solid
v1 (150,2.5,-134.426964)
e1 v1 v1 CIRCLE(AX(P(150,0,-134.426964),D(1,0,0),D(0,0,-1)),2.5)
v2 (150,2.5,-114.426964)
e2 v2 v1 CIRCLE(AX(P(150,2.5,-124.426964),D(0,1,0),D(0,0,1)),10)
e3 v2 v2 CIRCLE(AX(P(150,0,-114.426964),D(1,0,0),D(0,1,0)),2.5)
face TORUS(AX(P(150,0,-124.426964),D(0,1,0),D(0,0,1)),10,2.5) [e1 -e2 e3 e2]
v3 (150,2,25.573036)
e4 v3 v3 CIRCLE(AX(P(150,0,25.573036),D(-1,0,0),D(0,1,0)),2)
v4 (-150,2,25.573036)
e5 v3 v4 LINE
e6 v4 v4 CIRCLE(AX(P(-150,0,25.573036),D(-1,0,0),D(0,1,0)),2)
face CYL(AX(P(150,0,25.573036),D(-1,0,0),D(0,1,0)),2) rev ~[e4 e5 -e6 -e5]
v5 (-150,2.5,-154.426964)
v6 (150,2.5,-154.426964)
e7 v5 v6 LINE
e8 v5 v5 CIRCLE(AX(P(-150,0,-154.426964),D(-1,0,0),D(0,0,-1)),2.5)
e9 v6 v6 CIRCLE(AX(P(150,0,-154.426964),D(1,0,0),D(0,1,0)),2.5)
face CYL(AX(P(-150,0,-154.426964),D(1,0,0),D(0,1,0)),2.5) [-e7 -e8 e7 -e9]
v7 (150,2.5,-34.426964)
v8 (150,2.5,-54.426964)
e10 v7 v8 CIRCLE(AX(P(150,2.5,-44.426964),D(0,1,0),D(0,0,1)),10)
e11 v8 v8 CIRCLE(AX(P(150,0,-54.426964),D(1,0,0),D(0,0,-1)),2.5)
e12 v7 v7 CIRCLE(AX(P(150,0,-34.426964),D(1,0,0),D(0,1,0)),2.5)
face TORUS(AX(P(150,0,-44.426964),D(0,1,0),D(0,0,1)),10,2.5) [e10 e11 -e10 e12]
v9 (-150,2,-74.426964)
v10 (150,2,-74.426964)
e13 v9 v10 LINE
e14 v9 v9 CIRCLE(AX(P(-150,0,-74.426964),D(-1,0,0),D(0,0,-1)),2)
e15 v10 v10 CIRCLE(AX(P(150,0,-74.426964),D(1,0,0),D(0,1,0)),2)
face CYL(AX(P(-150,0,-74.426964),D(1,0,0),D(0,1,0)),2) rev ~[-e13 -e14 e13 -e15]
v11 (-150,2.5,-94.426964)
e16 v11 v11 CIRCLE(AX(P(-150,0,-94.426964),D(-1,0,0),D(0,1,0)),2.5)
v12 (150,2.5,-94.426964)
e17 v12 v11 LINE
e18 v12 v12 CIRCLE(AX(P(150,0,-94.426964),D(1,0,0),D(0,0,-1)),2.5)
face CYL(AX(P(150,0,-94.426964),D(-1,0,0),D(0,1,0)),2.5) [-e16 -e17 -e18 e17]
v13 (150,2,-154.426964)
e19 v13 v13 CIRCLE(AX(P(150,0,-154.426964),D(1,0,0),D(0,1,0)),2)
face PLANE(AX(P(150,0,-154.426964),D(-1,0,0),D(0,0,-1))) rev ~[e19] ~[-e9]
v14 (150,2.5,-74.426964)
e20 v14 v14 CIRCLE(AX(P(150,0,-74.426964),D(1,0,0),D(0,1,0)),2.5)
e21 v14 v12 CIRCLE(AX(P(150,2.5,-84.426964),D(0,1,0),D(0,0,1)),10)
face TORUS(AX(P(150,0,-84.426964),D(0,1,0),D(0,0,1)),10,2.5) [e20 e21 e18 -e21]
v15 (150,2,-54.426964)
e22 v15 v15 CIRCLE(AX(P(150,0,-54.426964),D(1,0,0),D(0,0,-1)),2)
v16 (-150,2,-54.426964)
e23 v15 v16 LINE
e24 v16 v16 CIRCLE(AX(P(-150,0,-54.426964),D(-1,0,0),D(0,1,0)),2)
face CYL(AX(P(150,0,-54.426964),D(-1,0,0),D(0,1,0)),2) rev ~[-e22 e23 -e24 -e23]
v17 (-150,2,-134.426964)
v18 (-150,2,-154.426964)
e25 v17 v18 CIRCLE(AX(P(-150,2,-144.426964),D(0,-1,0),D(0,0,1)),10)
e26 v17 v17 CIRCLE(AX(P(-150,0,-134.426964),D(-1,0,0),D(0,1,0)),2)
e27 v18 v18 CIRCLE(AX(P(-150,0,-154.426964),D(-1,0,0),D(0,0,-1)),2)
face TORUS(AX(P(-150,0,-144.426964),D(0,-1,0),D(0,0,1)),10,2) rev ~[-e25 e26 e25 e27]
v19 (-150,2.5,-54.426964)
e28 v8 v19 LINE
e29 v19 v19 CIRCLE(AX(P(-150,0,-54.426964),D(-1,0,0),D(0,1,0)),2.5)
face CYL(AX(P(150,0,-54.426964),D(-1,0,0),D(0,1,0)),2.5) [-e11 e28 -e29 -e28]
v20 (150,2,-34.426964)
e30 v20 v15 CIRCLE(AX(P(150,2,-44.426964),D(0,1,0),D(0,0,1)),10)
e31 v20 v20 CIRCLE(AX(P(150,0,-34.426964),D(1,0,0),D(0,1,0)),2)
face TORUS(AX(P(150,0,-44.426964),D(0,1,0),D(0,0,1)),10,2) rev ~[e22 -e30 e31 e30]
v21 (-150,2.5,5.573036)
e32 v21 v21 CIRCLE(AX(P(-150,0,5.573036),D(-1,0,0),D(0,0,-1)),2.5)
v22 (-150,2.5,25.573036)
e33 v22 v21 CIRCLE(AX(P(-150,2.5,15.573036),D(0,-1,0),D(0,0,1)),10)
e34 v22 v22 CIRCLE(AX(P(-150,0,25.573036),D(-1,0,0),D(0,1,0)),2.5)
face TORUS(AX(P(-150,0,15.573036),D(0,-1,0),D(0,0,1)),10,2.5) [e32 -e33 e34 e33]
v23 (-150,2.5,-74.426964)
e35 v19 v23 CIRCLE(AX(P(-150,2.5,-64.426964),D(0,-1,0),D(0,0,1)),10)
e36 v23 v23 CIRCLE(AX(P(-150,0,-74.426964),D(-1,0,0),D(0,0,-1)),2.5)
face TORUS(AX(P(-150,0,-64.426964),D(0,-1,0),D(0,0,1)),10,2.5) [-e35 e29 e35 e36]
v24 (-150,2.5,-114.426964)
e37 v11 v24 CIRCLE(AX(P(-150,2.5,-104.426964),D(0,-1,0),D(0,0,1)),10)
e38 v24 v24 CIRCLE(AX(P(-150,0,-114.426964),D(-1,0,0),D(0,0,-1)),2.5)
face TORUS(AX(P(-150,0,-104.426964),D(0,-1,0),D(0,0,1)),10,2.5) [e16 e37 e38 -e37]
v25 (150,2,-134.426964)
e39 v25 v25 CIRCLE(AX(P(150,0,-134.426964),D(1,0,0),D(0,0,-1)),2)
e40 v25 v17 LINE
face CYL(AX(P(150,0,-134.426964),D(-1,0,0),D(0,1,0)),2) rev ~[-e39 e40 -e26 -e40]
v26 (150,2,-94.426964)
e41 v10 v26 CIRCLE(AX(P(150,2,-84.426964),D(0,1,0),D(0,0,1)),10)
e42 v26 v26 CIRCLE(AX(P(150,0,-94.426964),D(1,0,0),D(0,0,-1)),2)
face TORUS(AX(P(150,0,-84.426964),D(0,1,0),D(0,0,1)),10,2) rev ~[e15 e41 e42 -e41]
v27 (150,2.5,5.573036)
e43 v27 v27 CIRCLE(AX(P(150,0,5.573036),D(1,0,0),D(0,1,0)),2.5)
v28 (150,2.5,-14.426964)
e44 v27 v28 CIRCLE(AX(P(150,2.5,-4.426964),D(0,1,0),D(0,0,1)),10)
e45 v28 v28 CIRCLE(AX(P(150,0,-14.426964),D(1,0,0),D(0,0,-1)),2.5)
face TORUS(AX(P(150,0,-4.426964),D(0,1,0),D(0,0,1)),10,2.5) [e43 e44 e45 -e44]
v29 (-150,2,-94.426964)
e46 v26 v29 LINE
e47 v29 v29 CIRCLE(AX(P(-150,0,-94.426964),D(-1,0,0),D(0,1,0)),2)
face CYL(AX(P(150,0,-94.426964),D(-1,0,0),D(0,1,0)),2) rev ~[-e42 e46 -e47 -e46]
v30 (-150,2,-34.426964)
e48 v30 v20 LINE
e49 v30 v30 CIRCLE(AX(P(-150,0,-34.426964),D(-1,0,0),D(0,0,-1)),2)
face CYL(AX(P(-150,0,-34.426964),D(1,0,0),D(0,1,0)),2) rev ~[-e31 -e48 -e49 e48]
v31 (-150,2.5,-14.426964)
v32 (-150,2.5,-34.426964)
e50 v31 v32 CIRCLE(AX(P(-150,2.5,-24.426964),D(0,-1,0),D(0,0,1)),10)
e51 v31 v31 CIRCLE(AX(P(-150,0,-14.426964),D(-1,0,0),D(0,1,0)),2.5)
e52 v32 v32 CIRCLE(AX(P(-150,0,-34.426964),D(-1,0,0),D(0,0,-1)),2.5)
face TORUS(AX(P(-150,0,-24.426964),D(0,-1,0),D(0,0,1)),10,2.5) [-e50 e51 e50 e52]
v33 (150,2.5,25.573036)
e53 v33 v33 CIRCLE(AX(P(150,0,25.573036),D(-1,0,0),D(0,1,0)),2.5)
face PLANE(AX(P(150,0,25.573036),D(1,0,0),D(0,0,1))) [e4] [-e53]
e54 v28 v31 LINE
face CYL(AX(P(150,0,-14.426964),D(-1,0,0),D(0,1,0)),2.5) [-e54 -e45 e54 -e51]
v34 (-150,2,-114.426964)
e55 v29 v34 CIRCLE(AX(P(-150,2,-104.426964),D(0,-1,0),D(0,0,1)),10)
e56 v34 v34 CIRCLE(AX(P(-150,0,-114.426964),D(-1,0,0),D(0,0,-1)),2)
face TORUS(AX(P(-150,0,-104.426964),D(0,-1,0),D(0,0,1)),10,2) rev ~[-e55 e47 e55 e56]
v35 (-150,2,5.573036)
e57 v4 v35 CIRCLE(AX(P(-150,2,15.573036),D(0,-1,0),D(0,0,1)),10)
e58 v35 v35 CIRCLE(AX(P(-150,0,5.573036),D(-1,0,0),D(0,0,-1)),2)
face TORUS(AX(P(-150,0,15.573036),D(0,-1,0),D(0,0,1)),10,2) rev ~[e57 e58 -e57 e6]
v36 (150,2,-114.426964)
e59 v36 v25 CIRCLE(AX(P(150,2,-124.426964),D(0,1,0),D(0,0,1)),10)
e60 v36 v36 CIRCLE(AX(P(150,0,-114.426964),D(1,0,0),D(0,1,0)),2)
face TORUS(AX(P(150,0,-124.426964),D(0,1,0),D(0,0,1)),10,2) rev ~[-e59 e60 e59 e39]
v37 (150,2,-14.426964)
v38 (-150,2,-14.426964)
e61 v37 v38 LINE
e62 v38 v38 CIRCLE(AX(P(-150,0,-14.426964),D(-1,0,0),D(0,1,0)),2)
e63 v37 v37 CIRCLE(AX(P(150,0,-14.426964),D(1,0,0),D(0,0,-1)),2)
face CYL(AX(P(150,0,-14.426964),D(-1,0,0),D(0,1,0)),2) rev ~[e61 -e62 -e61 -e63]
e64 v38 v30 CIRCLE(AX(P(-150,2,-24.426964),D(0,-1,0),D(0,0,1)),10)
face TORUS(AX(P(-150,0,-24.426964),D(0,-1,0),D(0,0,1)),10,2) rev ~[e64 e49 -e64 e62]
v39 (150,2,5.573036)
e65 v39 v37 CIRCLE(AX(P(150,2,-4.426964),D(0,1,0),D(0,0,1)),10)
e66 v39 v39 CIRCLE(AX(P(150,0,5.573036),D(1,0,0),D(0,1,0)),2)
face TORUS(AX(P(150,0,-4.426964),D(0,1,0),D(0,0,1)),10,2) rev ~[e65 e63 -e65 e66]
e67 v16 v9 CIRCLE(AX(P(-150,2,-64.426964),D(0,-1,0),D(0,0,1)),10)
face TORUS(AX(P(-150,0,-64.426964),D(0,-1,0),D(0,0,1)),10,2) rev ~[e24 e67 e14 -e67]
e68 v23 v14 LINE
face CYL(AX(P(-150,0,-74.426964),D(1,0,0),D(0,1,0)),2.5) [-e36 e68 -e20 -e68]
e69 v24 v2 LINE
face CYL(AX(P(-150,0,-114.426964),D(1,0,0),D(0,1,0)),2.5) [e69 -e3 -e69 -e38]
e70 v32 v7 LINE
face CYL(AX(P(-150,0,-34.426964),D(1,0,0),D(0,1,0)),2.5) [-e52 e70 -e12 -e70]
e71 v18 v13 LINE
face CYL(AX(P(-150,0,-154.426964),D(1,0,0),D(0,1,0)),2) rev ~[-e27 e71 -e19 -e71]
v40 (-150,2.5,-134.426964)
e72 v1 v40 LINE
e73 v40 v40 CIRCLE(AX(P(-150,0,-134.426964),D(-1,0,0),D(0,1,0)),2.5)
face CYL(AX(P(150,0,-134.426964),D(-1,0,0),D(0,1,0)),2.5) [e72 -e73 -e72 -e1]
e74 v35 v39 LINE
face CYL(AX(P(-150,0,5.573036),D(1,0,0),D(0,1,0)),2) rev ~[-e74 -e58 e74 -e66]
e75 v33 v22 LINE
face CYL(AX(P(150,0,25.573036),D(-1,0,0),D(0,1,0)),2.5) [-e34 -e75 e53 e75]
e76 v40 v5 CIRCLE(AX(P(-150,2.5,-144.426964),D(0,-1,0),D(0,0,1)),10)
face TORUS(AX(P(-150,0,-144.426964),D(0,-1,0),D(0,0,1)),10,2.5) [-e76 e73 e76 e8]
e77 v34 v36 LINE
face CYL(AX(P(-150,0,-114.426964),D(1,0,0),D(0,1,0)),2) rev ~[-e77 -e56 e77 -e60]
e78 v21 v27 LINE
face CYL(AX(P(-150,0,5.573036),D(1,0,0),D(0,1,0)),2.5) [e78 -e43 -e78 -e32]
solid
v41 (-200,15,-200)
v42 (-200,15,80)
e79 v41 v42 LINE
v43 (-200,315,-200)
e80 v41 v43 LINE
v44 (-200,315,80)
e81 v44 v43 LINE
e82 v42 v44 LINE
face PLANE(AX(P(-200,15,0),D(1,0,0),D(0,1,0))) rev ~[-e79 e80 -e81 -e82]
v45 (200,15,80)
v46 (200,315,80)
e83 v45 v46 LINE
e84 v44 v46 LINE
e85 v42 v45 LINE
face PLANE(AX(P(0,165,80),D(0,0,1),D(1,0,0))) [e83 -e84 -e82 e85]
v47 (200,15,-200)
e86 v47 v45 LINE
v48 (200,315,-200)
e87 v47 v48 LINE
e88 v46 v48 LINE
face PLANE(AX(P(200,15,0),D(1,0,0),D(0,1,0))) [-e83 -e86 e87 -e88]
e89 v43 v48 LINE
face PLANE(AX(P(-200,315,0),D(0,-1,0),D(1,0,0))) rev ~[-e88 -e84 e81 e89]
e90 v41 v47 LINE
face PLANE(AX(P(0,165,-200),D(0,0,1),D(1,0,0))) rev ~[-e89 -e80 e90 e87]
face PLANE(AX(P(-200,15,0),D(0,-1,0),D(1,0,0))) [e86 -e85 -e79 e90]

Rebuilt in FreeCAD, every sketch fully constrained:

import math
import FreeCAD as App
import Part
import Sketcher

V = App.Vector


def add_polygon(sketch, points):
    """Adds a closed chain of lines whose ends are joined by coincident constraints."""
    first, n = sketch.GeometryCount, len(points)
    for a, b in zip(points, points[1:] + points[:1]):
        sketch.addGeometry(Part.LineSegment(App.Vector(*a, 0), App.Vector(*b, 0)), False)
    for i in range(n):
        sketch.addConstraint(Sketcher.Constraint("Coincident", first + i, 2, first + (i + 1) % n, 1))

doc = App.newDocument("Part")
params = doc.addObject("Spreadsheet::Sheet", "Params")
for row, (alias, value) in enumerate([
    ("sketch1_diameter", "5 mm"),
    ("sketch1_diameter2", "4 mm"),
    ("sketch2_radius", "10 mm"),
    ("sketch2_width", "300 mm"),
    ("sketch3_width", "400 mm"),
    ("sketch3_height", "300 mm"),
    ("pad1_length", "80 mm"),
    ("pad1_length2", "200 mm"),
], start=1):
    params.set(f"A{row}", alias)
    params.set(f"B{row}", "=" + value)
    params.setAlias(f"B{row}", alias)

body = doc.addObject("PartDesign::Body", "Body")

sketch1 = doc.addObject("Sketcher::SketchObject", "Sketch")
body.addObject(sketch1)
sketch1.AttachmentSupport = (doc.YZ_Plane, [""])
sketch1.MapMode = "FlatFace"
sketch1.addGeometry([
    Part.Circle(V(0, 25.6, 0), V(0, 0, 1), 2.5),
    Part.Circle(V(0, 25.6, 0), V(0, 0, 1), 2),
], False)
sketch1.addConstraint([
    Sketcher.Constraint("Coincident", 1, 3, 0, 3),
    Sketcher.Constraint("PointOnObject", 0, 3, -2),
    Sketcher.Constraint("Diameter", 0, 5.0),
    Sketcher.Constraint("Diameter", 1, 4.0),
    Sketcher.Constraint("DistanceY", -1, 1, 0, 3, 25.573036),
])
sketch1.setExpression("Constraints[2]", "Params.sketch1_diameter")
sketch1.setExpression("Constraints[3]", "Params.sketch1_diameter2")

sketch2 = doc.addObject("Sketcher::SketchObject", "Sketch001")
body.addObject(sketch2)
sketch2.AttachmentSupport = (doc.XZ_Plane, [""])
sketch2.MapMode = "FlatFace"
sketch2.addGeometry([
    Part.LineSegment(V(150, 26, 0), V(-150, 26, 0)),
    Part.ArcOfCircle(Part.Circle(V(-150, 16, 0), V(0, 0, 1), 10), math.radians(90), math.radians(270)),
    Part.LineSegment(V(-150, 6, 0), V(150, 6, 0)),
    Part.ArcOfCircle(Part.Circle(V(150, -4, 0), V(0, 0, 1), 10), math.radians(-90), math.radians(90)),
    Part.LineSegment(V(150, -14, 0), V(-150, -14, 0)),
    Part.ArcOfCircle(Part.Circle(V(-150, -24, 0), V(0, 0, 1), 10), math.radians(90), math.radians(270)),
    Part.LineSegment(V(-150, -34, 0), V(150, -34, 0)),
    Part.ArcOfCircle(Part.Circle(V(150, -44, 0), V(0, 0, 1), 10), math.radians(-90), math.radians(90)),
    Part.LineSegment(V(150, -54, 0), V(-150, -54, 0)),
    Part.ArcOfCircle(Part.Circle(V(-150, -64, 0), V(0, 0, 1), 10), math.radians(90), math.radians(270)),
    Part.LineSegment(V(-150, -74, 0), V(150, -74, 0)),
    Part.ArcOfCircle(Part.Circle(V(150, -84, 0), V(0, 0, 1), 10), math.radians(-90), math.radians(90)),
    Part.LineSegment(V(150, -94, 0), V(-150, -94, 0)),
    Part.ArcOfCircle(Part.Circle(V(-150, -104, 0), V(0, 0, 1), 10), math.radians(90), math.radians(270)),
    Part.LineSegment(V(-150, -114, 0), V(150, -114, 0)),
    Part.ArcOfCircle(Part.Circle(V(150, -124, 0), V(0, 0, 1), 10), math.radians(-90), math.radians(90)),
    Part.LineSegment(V(150, -134, 0), V(-150, -134, 0)),
    Part.ArcOfCircle(Part.Circle(V(-150, -144, 0), V(0, 0, 1), 10), math.radians(90), math.radians(270)),
    Part.LineSegment(V(-150, -154, 0), V(150, -154, 0)),
], False)
sketch2.addConstraint([
    Sketcher.Constraint("Tangent", 0, 2, 1, 1),
    Sketcher.Constraint("Tangent", 1, 2, 2, 1),
    Sketcher.Constraint("Tangent", 2, 2, 3, 2),
    Sketcher.Constraint("Tangent", 3, 1, 4, 1),
    Sketcher.Constraint("Tangent", 4, 2, 5, 1),
    Sketcher.Constraint("Tangent", 5, 2, 6, 1),
    Sketcher.Constraint("Tangent", 6, 2, 7, 2),
    Sketcher.Constraint("Tangent", 7, 1, 8, 1),
    Sketcher.Constraint("Tangent", 8, 2, 9, 1),
    Sketcher.Constraint("Tangent", 9, 2, 10, 1),
    Sketcher.Constraint("Tangent", 10, 2, 11, 2),
    Sketcher.Constraint("Tangent", 11, 1, 12, 1),
    Sketcher.Constraint("Tangent", 12, 2, 13, 1),
    Sketcher.Constraint("Tangent", 13, 2, 14, 1),
    Sketcher.Constraint("Tangent", 14, 2, 15, 2),
    Sketcher.Constraint("Tangent", 15, 1, 16, 1),
    Sketcher.Constraint("Tangent", 16, 2, 17, 1),
    Sketcher.Constraint("Tangent", 17, 2, 18, 1),
    Sketcher.Constraint("Horizontal", 0),
    Sketcher.Constraint("Horizontal", 2),
    Sketcher.Constraint("Horizontal", 4),
    Sketcher.Constraint("Horizontal", 6),
    Sketcher.Constraint("Horizontal", 8),
    Sketcher.Constraint("Horizontal", 10),
    Sketcher.Constraint("Horizontal", 12),
    Sketcher.Constraint("Horizontal", 14),
    Sketcher.Constraint("Horizontal", 16),
    Sketcher.Constraint("Horizontal", 18),
    Sketcher.Constraint("Equal", 1, 3),
    Sketcher.Constraint("Equal", 3, 5),
    Sketcher.Constraint("Equal", 5, 7),
    Sketcher.Constraint("Equal", 7, 9),
    Sketcher.Constraint("Equal", 9, 11),
    Sketcher.Constraint("Equal", 11, 13),
    Sketcher.Constraint("Equal", 13, 15),
    Sketcher.Constraint("Equal", 15, 17),
    Sketcher.Constraint("Vertical", 1, 3, 5, 3),
    Sketcher.Constraint("Vertical", 3, 3, 7, 3),
    Sketcher.Constraint("Vertical", 5, 3, 9, 3),
    Sketcher.Constraint("Vertical", 7, 3, 11, 3),
    Sketcher.Constraint("Vertical", 9, 3, 13, 3),
    Sketcher.Constraint("Vertical", 11, 3, 15, 3),
    Sketcher.Constraint("Vertical", 13, 3, 17, 3),
    Sketcher.Constraint("Vertical", 15, 3, 0, 1),
    Sketcher.Constraint("Vertical", 15, 1, 18, 2),
    Sketcher.Constraint("Radius", 1, 10.0),
    Sketcher.Constraint("DistanceX", 0, 2, 0, 1, 300.0),
    Sketcher.Constraint("DistanceX", 1, 3, -1, 1, 150.0),
    Sketcher.Constraint("DistanceY", -1, 1, 1, 3, 15.573036),
])
sketch2.setExpression("Constraints[45]", "Params.sketch2_radius")
sketch2.setExpression("Constraints[46]", "Params.sketch2_width")
doc.recompute()

additivepipe = doc.addObject("PartDesign::AdditivePipe", "AdditivePipe")
body.addObject(additivepipe)
additivepipe.Profile = sketch1
additivepipe.Spine = (sketch2, ["Edge1", "Edge2", "Edge3", "Edge4", "Edge5", "Edge6", "Edge7", "Edge8", "Edge9", "Edge10", "Edge11", "Edge12", "Edge13", "Edge14", "Edge15", "Edge16", "Edge17", "Edge18", "Edge19"])
body2 = doc.addObject("PartDesign::Body", "Body001")

sketch3 = doc.addObject("Sketcher::SketchObject", "Sketch002")
body2.addObject(sketch3)
sketch3.AttachmentSupport = (doc.getObject("XY_Plane001"), [""])
sketch3.MapMode = "FlatFace"
add_polygon(sketch3, [(-200, 315), (-200, 15), (200, 15), (200, 315)])
sketch3.addConstraint([
    Sketcher.Constraint("Vertical", 0),
    Sketcher.Constraint("Horizontal", 1),
    Sketcher.Constraint("Vertical", 2),
    Sketcher.Constraint("Horizontal", 3),
    Sketcher.Constraint("DistanceX", 1, 1, 1, 2, 400.0),
    Sketcher.Constraint("DistanceY", 0, 2, 0, 1, 300.0),
    Sketcher.Constraint("DistanceX", 0, 2, -1, 1, 200.0),
    Sketcher.Constraint("DistanceY", -1, 1, 0, 2, 15.0),
])
sketch3.setExpression("Constraints[8]", "Params.sketch3_width")
sketch3.setExpression("Constraints[9]", "Params.sketch3_height")
pad1 = doc.addObject("PartDesign::Pad", "Pad")
body2.addObject(pad1)
pad1.Profile = sketch3
pad1.Type = "TwoLengths"
pad1.setExpression("Length", "Params.pad1_length")
pad1.setExpression("Length2", "Params.pad1_length2")

doc.recompute()
